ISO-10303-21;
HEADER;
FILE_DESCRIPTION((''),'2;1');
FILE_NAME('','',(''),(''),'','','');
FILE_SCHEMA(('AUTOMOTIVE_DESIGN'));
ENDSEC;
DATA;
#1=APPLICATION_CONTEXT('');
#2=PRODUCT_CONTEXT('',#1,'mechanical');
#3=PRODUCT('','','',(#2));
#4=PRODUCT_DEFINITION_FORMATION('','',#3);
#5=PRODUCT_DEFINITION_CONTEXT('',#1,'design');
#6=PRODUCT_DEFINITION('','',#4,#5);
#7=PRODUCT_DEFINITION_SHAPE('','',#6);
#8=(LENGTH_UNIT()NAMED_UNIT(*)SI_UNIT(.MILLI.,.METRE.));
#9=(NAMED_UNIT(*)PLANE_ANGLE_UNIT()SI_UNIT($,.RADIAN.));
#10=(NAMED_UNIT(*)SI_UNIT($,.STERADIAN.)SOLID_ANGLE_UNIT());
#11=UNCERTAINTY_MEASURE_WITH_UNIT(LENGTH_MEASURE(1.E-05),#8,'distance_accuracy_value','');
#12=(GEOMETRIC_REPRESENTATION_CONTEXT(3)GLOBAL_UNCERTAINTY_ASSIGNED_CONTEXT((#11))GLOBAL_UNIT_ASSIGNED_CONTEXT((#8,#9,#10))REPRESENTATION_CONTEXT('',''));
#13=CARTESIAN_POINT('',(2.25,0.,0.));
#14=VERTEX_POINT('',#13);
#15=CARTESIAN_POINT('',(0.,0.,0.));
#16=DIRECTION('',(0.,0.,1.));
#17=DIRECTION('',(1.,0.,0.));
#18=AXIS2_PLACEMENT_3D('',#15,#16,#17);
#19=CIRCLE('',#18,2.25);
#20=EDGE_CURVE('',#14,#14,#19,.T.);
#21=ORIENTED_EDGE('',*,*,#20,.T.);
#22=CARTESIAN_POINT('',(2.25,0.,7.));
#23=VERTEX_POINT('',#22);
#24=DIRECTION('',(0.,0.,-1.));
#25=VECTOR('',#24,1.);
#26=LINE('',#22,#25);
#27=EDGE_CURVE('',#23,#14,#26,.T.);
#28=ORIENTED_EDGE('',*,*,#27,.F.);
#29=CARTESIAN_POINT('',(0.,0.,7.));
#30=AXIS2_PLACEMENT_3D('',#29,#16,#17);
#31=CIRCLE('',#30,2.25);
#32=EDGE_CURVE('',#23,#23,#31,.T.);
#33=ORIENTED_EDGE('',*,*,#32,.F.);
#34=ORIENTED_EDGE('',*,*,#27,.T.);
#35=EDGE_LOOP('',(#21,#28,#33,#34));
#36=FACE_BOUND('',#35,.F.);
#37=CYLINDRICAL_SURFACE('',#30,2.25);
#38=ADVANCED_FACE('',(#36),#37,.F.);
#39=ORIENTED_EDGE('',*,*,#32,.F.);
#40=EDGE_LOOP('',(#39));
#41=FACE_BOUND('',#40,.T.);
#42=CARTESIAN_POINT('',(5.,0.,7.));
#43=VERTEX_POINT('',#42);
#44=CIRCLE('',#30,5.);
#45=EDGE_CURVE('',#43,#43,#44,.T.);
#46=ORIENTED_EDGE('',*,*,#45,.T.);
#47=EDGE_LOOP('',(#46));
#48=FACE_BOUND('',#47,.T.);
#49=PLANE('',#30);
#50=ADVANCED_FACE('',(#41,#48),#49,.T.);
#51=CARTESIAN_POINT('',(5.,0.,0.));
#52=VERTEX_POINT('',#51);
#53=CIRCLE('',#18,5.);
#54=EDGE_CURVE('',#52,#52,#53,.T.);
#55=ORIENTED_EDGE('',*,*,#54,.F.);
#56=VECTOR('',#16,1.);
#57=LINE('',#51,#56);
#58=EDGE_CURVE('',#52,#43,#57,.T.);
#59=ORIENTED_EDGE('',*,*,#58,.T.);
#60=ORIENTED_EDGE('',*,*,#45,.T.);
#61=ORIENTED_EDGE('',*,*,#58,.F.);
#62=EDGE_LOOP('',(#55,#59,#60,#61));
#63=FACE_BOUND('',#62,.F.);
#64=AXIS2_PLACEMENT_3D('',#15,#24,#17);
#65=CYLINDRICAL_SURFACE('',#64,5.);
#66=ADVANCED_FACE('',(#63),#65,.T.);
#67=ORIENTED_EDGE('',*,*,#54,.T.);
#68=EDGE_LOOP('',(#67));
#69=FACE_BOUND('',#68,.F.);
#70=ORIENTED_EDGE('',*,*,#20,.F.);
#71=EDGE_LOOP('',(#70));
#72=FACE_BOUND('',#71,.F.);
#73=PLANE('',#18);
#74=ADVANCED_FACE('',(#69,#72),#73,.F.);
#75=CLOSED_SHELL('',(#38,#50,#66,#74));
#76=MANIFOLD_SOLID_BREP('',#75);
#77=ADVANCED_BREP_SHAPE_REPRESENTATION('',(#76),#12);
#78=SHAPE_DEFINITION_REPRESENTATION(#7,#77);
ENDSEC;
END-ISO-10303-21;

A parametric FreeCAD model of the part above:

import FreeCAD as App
import Part
import Sketcher

V = App.Vector
Q = App.Units.Quantity

doc = App.newDocument("Part")
params = doc.addObject("Spreadsheet::Sheet", "Params")
for row, (alias, value) in enumerate([
    ("sketch1_diameter", "10 mm"),
    ("pad1_length", "7 mm"),
    ("sketch2_diameter", "4.5 mm"),
], start=1):
    params.set(f"A{row}", alias)
    params.set(f"B{row}", "=" + value)
    params.setAlias(f"B{row}", alias)

body = doc.addObject("PartDesign::Body", "Body")

# Sketch on XY plane
sketch1 = doc.addObject("Sketcher::SketchObject", "Sketch")
body.addObject(sketch1)
sketch1.AttachmentSupport = (doc.XY_Plane, [""])
sketch1.MapMode = "FlatFace"
sketch1.addGeometry(Part.Circle(V(0, 0, 0), V(0, 0, 1), 5), False)
sketch1.addConstraint([
    Sketcher.Constraint("Coincident", 0, 3, -1, 1),
    Sketcher.Constraint("Diameter", 0, Q("10 mm")),
])
sketch1.setExpression("Constraints[1]", "Params.sketch1_diameter")
pad1 = doc.addObject("PartDesign::Pad", "Pad")
body.addObject(pad1)
pad1.Profile = sketch1
pad1.setExpression("Length", "Params.pad1_length")

# Sketch on XY plane
sketch2 = doc.addObject("Sketcher::SketchObject", "Sketch001")
body.addObject(sketch2)
sketch2.AttachmentSupport = (doc.XY_Plane, [""])
sketch2.MapMode = "FlatFace"
sketch2.AttachmentOffset = App.Placement(V(0, 0, 7), App.Rotation())
sketch2.addGeometry(Part.Circle(V(0, 0, 0), V(0, 0, 1), 2.25), False)
sketch2.addConstraint([
    Sketcher.Constraint("Coincident", 0, 3, -1, 1),
    Sketcher.Constraint("Diameter", 0, Q("4.5 mm")),
])
sketch2.setExpression("Constraints[1]", "Params.sketch2_diameter")
pocket1 = doc.addObject("PartDesign::Pocket", "Pocket")
body.addObject(pocket1)
pocket1.Profile = sketch2
pocket1.Type = "ThroughAll"

doc.recompute()
